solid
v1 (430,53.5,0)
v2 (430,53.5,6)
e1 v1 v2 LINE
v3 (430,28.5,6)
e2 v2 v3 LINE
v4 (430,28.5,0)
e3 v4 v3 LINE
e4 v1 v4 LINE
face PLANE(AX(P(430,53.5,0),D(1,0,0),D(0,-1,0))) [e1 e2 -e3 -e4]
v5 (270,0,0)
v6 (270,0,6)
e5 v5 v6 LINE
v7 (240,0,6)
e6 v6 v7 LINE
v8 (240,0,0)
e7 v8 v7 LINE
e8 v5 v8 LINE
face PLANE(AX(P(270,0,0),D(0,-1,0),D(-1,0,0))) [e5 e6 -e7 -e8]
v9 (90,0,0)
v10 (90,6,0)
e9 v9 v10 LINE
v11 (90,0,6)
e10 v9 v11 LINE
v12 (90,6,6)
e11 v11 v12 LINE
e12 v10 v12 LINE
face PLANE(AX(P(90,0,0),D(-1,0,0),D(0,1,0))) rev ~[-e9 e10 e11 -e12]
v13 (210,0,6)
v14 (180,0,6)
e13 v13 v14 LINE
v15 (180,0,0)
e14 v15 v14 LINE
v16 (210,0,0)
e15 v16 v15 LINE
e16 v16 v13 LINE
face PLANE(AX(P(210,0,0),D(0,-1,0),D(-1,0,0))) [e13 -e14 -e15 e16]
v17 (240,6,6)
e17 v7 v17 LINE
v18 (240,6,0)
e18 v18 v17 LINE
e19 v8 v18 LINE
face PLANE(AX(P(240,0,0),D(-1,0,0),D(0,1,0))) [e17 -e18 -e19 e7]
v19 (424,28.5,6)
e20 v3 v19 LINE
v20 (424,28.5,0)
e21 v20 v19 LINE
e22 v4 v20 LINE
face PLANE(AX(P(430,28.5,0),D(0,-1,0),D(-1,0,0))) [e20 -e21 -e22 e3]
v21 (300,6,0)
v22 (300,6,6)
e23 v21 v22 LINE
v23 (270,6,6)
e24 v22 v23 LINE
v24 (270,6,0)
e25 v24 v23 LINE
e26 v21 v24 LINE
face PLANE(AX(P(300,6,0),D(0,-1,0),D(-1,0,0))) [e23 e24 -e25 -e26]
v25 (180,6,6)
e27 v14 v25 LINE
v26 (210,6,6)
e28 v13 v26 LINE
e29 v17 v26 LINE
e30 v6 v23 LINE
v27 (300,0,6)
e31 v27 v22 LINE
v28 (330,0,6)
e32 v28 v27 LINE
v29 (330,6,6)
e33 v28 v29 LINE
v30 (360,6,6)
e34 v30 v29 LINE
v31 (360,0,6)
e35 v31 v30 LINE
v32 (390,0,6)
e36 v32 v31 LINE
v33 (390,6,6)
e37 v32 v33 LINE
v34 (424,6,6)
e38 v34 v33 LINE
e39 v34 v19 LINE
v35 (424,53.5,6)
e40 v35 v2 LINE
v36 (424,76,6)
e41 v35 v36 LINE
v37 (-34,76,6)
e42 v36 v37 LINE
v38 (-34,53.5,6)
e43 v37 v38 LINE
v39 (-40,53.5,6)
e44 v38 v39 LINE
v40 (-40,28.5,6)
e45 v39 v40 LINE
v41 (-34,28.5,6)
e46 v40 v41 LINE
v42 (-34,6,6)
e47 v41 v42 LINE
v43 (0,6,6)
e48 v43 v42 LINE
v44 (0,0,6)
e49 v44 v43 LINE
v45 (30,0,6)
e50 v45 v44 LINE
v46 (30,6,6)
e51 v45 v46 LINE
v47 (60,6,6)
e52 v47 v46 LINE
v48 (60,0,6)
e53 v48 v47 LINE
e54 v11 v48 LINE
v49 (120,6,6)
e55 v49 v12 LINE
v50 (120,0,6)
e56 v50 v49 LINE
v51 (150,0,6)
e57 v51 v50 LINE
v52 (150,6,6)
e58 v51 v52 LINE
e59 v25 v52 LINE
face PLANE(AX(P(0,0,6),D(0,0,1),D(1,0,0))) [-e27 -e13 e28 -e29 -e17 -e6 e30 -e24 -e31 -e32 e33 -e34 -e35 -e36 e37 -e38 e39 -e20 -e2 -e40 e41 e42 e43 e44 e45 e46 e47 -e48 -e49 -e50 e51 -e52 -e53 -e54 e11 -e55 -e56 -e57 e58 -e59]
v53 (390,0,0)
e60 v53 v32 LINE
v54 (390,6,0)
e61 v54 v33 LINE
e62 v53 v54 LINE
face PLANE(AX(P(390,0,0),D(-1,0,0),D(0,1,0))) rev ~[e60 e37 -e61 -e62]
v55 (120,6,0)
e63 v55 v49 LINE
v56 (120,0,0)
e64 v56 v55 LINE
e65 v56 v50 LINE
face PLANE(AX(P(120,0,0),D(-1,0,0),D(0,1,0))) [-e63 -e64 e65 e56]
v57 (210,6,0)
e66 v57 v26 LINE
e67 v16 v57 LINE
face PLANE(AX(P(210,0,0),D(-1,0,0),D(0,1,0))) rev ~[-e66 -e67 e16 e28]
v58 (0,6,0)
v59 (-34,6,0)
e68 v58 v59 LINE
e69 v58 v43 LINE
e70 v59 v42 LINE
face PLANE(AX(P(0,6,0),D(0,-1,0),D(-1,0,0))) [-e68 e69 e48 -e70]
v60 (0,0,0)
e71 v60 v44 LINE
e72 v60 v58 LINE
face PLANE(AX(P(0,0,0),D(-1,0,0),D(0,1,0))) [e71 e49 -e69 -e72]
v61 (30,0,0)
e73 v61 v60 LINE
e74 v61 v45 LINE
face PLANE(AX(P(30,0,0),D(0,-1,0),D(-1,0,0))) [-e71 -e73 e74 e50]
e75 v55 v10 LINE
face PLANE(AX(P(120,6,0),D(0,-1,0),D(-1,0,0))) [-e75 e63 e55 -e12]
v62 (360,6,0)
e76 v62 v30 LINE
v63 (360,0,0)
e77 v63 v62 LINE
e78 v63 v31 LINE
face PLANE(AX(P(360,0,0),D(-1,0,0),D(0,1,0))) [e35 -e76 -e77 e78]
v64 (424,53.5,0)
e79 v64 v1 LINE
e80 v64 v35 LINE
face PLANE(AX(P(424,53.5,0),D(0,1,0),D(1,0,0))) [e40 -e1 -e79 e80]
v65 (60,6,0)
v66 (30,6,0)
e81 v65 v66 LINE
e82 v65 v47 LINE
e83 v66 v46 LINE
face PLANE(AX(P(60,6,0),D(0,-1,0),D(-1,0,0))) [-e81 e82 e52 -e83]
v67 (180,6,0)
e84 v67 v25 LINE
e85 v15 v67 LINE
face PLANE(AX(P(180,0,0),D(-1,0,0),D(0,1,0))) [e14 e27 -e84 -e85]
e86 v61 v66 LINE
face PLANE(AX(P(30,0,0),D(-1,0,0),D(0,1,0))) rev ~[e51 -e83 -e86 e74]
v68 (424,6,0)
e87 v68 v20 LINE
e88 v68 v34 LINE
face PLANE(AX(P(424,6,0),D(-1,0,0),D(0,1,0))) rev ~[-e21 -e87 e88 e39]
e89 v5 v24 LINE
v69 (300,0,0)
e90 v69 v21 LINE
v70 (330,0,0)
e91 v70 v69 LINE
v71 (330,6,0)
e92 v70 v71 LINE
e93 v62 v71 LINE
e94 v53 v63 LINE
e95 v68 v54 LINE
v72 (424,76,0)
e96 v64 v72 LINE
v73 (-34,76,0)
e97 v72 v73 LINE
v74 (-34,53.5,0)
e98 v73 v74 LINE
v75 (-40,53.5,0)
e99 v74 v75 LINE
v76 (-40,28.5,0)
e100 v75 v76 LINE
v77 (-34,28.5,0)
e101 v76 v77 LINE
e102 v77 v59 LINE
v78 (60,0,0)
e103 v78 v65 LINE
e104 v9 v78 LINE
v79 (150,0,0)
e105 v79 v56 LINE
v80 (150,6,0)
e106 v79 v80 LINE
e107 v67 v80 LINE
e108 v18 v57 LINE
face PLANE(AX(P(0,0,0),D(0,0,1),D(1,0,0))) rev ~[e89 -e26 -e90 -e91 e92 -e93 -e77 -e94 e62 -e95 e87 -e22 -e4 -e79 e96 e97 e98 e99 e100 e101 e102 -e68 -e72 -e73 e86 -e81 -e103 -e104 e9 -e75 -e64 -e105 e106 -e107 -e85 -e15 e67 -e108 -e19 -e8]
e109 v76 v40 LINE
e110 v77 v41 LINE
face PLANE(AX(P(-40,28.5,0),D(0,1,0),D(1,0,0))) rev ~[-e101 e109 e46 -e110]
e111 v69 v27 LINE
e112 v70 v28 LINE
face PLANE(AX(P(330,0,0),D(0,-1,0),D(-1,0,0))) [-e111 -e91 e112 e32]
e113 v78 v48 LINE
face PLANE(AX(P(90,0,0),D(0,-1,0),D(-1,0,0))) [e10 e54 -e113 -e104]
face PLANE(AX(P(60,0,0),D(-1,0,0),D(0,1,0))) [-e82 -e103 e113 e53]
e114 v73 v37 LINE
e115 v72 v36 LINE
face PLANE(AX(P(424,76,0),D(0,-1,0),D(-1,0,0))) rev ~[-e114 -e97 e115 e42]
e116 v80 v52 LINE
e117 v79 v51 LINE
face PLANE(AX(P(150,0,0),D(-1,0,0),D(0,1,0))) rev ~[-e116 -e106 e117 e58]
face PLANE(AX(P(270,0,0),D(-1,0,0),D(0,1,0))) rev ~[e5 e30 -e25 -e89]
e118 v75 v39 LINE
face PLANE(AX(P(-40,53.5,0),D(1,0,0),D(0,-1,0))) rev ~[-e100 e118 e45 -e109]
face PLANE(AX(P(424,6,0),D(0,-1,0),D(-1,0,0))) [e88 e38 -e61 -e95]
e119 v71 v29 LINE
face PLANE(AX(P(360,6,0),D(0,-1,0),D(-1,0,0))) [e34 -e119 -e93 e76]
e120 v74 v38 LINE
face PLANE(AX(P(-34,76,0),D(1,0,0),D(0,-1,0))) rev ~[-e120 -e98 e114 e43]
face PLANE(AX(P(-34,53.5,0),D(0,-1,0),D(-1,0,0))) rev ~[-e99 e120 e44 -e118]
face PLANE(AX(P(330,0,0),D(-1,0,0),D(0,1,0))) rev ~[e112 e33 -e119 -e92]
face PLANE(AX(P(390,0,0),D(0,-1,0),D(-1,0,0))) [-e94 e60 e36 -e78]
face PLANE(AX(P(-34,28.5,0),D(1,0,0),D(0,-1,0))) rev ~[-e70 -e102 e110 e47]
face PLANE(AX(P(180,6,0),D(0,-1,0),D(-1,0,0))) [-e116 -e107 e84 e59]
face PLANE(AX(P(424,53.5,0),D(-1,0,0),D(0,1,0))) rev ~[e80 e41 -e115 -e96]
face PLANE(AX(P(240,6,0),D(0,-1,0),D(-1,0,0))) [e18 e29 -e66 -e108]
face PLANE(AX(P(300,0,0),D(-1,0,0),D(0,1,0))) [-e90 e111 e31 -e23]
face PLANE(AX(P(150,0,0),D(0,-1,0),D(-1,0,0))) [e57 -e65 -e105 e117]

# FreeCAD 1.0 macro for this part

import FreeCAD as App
import Part
import Sketcher
from FreeCAD import Vector

doc = App.newDocument("Part")
body = doc.addObject("PartDesign::Body", "Body")

# Sketch on XY plane
sketch1 = body.newObject("Sketcher::SketchObject", "Sketch")
sketch1.AttachmentSupport = (doc.getObject("XY_Plane"), [""])
sketch1.MapMode = "FlatFace"
sketch1.addGeometry(Part.LineSegment(Vector(-34, 28.5, 0), Vector(-34, 6, 0)), False)
sketch1.addGeometry(Part.LineSegment(Vector(-34, 6, 0), Vector(0, 6, 0)), False)
sketch1.addGeometry(Part.LineSegment(Vector(0, 6, 0), Vector(0, 0, 0)), False)
sketch1.addGeometry(Part.LineSegment(Vector(0, 0, 0), Vector(30, 0, 0)), False)
sketch1.addGeometry(Part.LineSegment(Vector(30, 0, 0), Vector(30, 6, 0)), False)
sketch1.addGeometry(Part.LineSegment(Vector(30, 6, 0), Vector(60, 6, 0)), False)
sketch1.addGeometry(Part.LineSegment(Vector(60, 6, 0), Vector(60, 0, 0)), False)
sketch1.addGeometry(Part.LineSegment(Vector(60, 0, 0), Vector(90, 0, 0)), False)
sketch1.addGeometry(Part.LineSegment(Vector(90, 0, 0), Vector(90, 6, 0)), False)
sketch1.addGeometry(Part.LineSegment(Vector(90, 6, 0), Vector(120, 6, 0)), False)
sketch1.addGeometry(Part.LineSegment(Vector(120, 6, 0), Vector(120, 0, 0)), False)
sketch1.addGeometry(Part.LineSegment(Vector(120, 0, 0), Vector(150, 0, 0)), False)
sketch1.addGeometry(Part.LineSegment(Vector(150, 0, 0), Vector(150, 6, 0)), False)
sketch1.addGeometry(Part.LineSegment(Vector(150, 6, 0), Vector(180, 6, 0)), False)
sketch1.addGeometry(Part.LineSegment(Vector(180, 6, 0), Vector(180, 0, 0)), False)
sketch1.addGeometry(Part.LineSegment(Vector(180, 0, 0), Vector(210, 0, 0)), False)
sketch1.addGeometry(Part.LineSegment(Vector(210, 0, 0), Vector(210, 6, 0)), False)
sketch1.addGeometry(Part.LineSegment(Vector(210, 6, 0), Vector(240, 6, 0)), False)
sketch1.addGeometry(Part.LineSegment(Vector(240, 6, 0), Vector(240, 0, 0)), False)
sketch1.addGeometry(Part.LineSegment(Vector(240, 0, 0), Vector(270, 0, 0)), False)
sketch1.addGeometry(Part.LineSegment(Vector(270, 0, 0), Vector(270, 6, 0)), False)
sketch1.addGeometry(Part.LineSegment(Vector(270, 6, 0), Vector(300, 6, 0)), False)
sketch1.addGeometry(Part.LineSegment(Vector(300, 6, 0), Vector(300, 0, 0)), False)
sketch1.addGeometry(Part.LineSegment(Vector(300, 0, 0), Vector(330, 0, 0)), False)
sketch1.addGeometry(Part.LineSegment(Vector(330, 0, 0), Vector(330, 6, 0)), False)
sketch1.addGeometry(Part.LineSegment(Vector(330, 6, 0), Vector(360, 6, 0)), False)
sketch1.addGeometry(Part.LineSegment(Vector(360, 6, 0), Vector(360, 0, 0)), False)
sketch1.addGeometry(Part.LineSegment(Vector(360, 0, 0), Vector(390, 0, 0)), False)
sketch1.addGeometry(Part.LineSegment(Vector(390, 0, 0), Vector(390, 6, 0)), False)
sketch1.addGeometry(Part.LineSegment(Vector(390, 6, 0), Vector(424, 6, 0)), False)
sketch1.addGeometry(Part.LineSegment(Vector(424, 6, 0), Vector(424, 28.5, 0)), False)
sketch1.addGeometry(Part.LineSegment(Vector(424, 28.5, 0), Vector(430, 28.5, 0)), False)
sketch1.addGeometry(Part.LineSegment(Vector(430, 28.5, 0), Vector(430, 53.5, 0)), False)
sketch1.addGeometry(Part.LineSegment(Vector(430, 53.5, 0), Vector(424, 53.5, 0)), False)
sketch1.addGeometry(Part.LineSegment(Vector(424, 53.5, 0), Vector(424, 76, 0)), False)
sketch1.addGeometry(Part.LineSegment(Vector(424, 76, 0), Vector(-34, 76, 0)), False)
sketch1.addGeometry(Part.LineSegment(Vector(-34, 76, 0), Vector(-34, 53.5, 0)), False)
sketch1.addGeometry(Part.LineSegment(Vector(-34, 53.5, 0), Vector(-40, 53.5, 0)), False)
sketch1.addGeometry(Part.LineSegment(Vector(-40, 53.5, 0), Vector(-40, 28.5, 0)), False)
sketch1.addGeometry(Part.LineSegment(Vector(-40, 28.5, 0), Vector(-34, 28.5, 0)), False)
sketch1.addConstraint(Sketcher.Constraint("Coincident", 0, 2, 1, 1))
sketch1.addConstraint(Sketcher.Constraint("Coincident", 1, 2, 2, 1))
sketch1.addConstraint(Sketcher.Constraint("Coincident", 2, 2, 3, 1))
sketch1.addConstraint(Sketcher.Constraint("Coincident", 3, 2, 4, 1))
sketch1.addConstraint(Sketcher.Constraint("Coincident", 4, 2, 5, 1))
sketch1.addConstraint(Sketcher.Constraint("Coincident", 5, 2, 6, 1))
sketch1.addConstraint(Sketcher.Constraint("Coincident", 6, 2, 7, 1))
sketch1.addConstraint(Sketcher.Constraint("Coincident", 7, 2, 8, 1))
sketch1.addConstraint(Sketcher.Constraint("Coincident", 8, 2, 9, 1))
sketch1.addConstraint(Sketcher.Constraint("Coincident", 9, 2, 10, 1))
sketch1.addConstraint(Sketcher.Constraint("Coincident", 10, 2, 11, 1))
sketch1.addConstraint(Sketcher.Constraint("Coincident", 11, 2, 12, 1))
sketch1.addConstraint(Sketcher.Constraint("Coincident", 12, 2, 13, 1))
sketch1.addConstraint(Sketcher.Constraint("Coincident", 13, 2, 14, 1))
sketch1.addConstraint(Sketcher.Constraint("Coincident", 14, 2, 15, 1))
sketch1.addConstraint(Sketcher.Constraint("Coincident", 15, 2, 16, 1))
sketch1.addConstraint(Sketcher.Constraint("Coincident", 16, 2, 17, 1))
sketch1.addConstraint(Sketcher.Constraint("Coincident", 17, 2, 18, 1))
sketch1.addConstraint(Sketcher.Constraint("Coincident", 18, 2, 19, 1))
sketch1.addConstraint(Sketcher.Constraint("Coincident", 19, 2, 20, 1))
sketch1.addConstraint(Sketcher.Constraint("Coincident", 20, 2, 21, 1))
sketch1.addConstraint(Sketcher.Constraint("Coincident", 21, 2, 22, 1))
sketch1.addConstraint(Sketcher.Constraint("Coincident", 22, 2, 23, 1))
sketch1.addConstraint(Sketcher.Constraint("Coincident", 23, 2, 24, 1))
sketch1.addConstraint(Sketcher.Constraint("Coincident", 24, 2, 25, 1))
sketch1.addConstraint(Sketcher.Constraint("Coincident", 25, 2, 26, 1))
sketch1.addConstraint(Sketcher.Constraint("Coincident", 26, 2, 27, 1))
sketch1.addConstraint(Sketcher.Constraint("Coincident", 27, 2, 28, 1))
sketch1.addConstraint(Sketcher.Constraint("Coincident", 28, 2, 29, 1))
sketch1.addConstraint(Sketcher.Constraint("Coincident", 29, 2, 30, 1))
sketch1.addConstraint(Sketcher.Constraint("Coincident", 30, 2, 31, 1))
sketch1.addConstraint(Sketcher.Constraint("Coincident", 31, 2, 32, 1))
sketch1.addConstraint(Sketcher.Constraint("Coincident", 32, 2, 33, 1))
sketch1.addConstraint(Sketcher.Constraint("Coincident", 33, 2, 34, 1))
sketch1.addConstraint(Sketcher.Constraint("Coincident", 34, 2, 35, 1))
sketch1.addConstraint(Sketcher.Constraint("Coincident", 35, 2, 36, 1))
sketch1.addConstraint(Sketcher.Constraint("Coincident", 36, 2, 37, 1))
sketch1.addConstraint(Sketcher.Constraint("Coincident", 37, 2, 38, 1))
sketch1.addConstraint(Sketcher.Constraint("Coincident", 38, 2, 39, 1))
sketch1.addConstraint(Sketcher.Constraint("Coincident", 39, 2, 0, 1))
sketch1.addConstraint(Sketcher.Constraint("Vertical", 0))
sketch1.addConstraint(Sketcher.Constraint("Horizontal", 1))
sketch1.addConstraint(Sketcher.Constraint("Vertical", 2))
sketch1.addConstraint(Sketcher.Constraint("Horizontal", 3))
sketch1.addConstraint(Sketcher.Constraint("Vertical", 4))
sketch1.addConstraint(Sketcher.Constraint("Horizontal", 5))
sketch1.addConstraint(Sketcher.Constraint("Vertical", 6))
sketch1.addConstraint(Sketcher.Constraint("Horizontal", 7))
sketch1.addConstraint(Sketcher.Constraint("Vertical", 8))
sketch1.addConstraint(Sketcher.Constraint("Horizontal", 9))
sketch1.addConstraint(Sketcher.Constraint("Vertical", 10))
sketch1.addConstraint(Sketcher.Constraint("Horizontal", 11))
sketch1.addConstraint(Sketcher.Constraint("Vertical", 12))
sketch1.addConstraint(Sketcher.Constraint("Horizontal", 13))
sketch1.addConstraint(Sketcher.Constraint("Vertical", 14))
sketch1.addConstraint(Sketcher.Constraint("Horizontal", 15))
sketch1.addConstraint(Sketcher.Constraint("Vertical", 16))
sketch1.addConstraint(Sketcher.Constraint("Horizontal", 17))
sketch1.addConstraint(Sketcher.Constraint("Vertical", 18))
sketch1.addConstraint(Sketcher.Constraint("Horizontal", 19))
sketch1.addConstraint(Sketcher.Constraint("Vertical", 20))
sketch1.addConstraint(Sketcher.Constraint("Horizontal", 21))
sketch1.addConstraint(Sketcher.Constraint("Vertical", 22))
sketch1.addConstraint(Sketcher.Constraint("Horizontal", 23))
sketch1.addConstraint(Sketcher.Constraint("Vertical", 24))
sketch1.addConstraint(Sketcher.Constraint("Horizontal", 25))
sketch1.addConstraint(Sketcher.Constraint("Vertical", 26))
sketch1.addConstraint(Sketcher.Constraint("Horizontal", 27))
sketch1.addConstraint(Sketcher.Constraint("Vertical", 28))
sketch1.addConstraint(Sketcher.Constraint("Horizontal", 29))
sketch1.addConstraint(Sketcher.Constraint("Vertical", 30))
sketch1.addConstraint(Sketcher.Constraint("Horizontal", 31))
sketch1.addConstraint(Sketcher.Constraint("Vertical", 32))
sketch1.addConstraint(Sketcher.Constraint("Horizontal", 33))
sketch1.addConstraint(Sketcher.Constraint("Vertical", 34))
sketch1.addConstraint(Sketcher.Constraint("Horizontal", 35))
sketch1.addConstraint(Sketcher.Constraint("Vertical", 36))
sketch1.addConstraint(Sketcher.Constraint("Horizontal", 37))
sketch1.addConstraint(Sketcher.Constraint("Vertical", 38))
sketch1.addConstraint(Sketcher.Constraint("Horizontal", 39))
sketch1.addConstraint(Sketcher.Constraint("Coincident", 2, 2, -1, 1))
sketch1.addConstraint(Sketcher.Constraint("PointOnObject", 6, 2, -1))
sketch1.addConstraint(Sketcher.Constraint("PointOnObject", 10, 2, -1))
sketch1.addConstraint(Sketcher.Constraint("PointOnObject", 14, 2, -1))
sketch1.addConstraint(Sketcher.Constraint("PointOnObject", 18, 2, -1))
sketch1.addConstraint(Sketcher.Constraint("PointOnObject", 22, 2, -1))
sketch1.addConstraint(Sketcher.Constraint("PointOnObject", 26, 2, -1))
sketch1.addConstraint(Sketcher.Constraint("Horizontal", 1, 2, 4, 2))
sketch1.addConstraint(Sketcher.Constraint("Horizontal", 5, 2, 8, 2))
sketch1.addConstraint(Sketcher.Constraint("Horizontal", 9, 2, 12, 2))
sketch1.addConstraint(Sketcher.Constraint("Horizontal", 13, 2, 16, 2))
sketch1.addConstraint(Sketcher.Constraint("Horizontal", 17, 2, 20, 2))
sketch1.addConstraint(Sketcher.Constraint("Horizontal", 21, 2, 24, 2))
sketch1.addConstraint(Sketcher.Constraint("Horizontal", 25, 2, 28, 2))
sketch1.addConstraint(Sketcher.Constraint("Horizontal", 33, 2, 36, 2))
sketch1.addConstraint(Sketcher.Constraint("Horizontal", 31, 2, 38, 2))
sketch1.addConstraint(Sketcher.Constraint("Vertical", 30, 2, 33, 2))
sketch1.addConstraint(Sketcher.Constraint("Vertical", 0, 2, 35, 2))
sketch1.addConstraint(Sketcher.Constraint("Equal", 3, 5))
sketch1.addConstraint(Sketcher.Constraint("Equal", 5, 7))
sketch1.addConstraint(Sketcher.Constraint("Equal", 7, 9))
sketch1.addConstraint(Sketcher.Constraint("Equal", 9, 11))
sketch1.addConstraint(Sketcher.Constraint("Equal", 11, 13))
sketch1.addConstraint(Sketcher.Constraint("Equal", 13, 15))
sketch1.addConstraint(Sketcher.Constraint("Equal", 15, 17))
sketch1.addConstraint(Sketcher.Constraint("Equal", 17, 19))
sketch1.addConstraint(Sketcher.Constraint("Equal", 19, 21))
sketch1.addConstraint(Sketcher.Constraint("Equal", 21, 23))
sketch1.addConstraint(Sketcher.Constraint("Equal", 23, 25))
sketch1.addConstraint(Sketcher.Constraint("Equal", 25, 27))
sketch1.addConstraint(Sketcher.Constraint("Equal", 1, 29))
sketch1.addConstraint(Sketcher.Constraint("Equal", 33, 37))
sketch1.addConstraint(Sketcher.Constraint("Equal", 39, 2))
sketch1.addConstraint(Sketcher.Constraint("Equal", 30, 34))
sketch1.addConstraint(Sketcher.Constraint("DistanceX", 31, 1, 31, 2, 6.0))
sketch1.addConstraint(Sketcher.Constraint("DistanceY", 32, 1, 32, 2, 25.0))
sketch1.addConstraint(Sketcher.Constraint("DistanceX", 25, 2, 31, 2, 70.0))
sketch1.addConstraint(Sketcher.Constraint("DistanceY", 29, 2, 34, 2, 70.0))
sketch1.addConstraint(Sketcher.Constraint("DistanceX", 1, 1, 1, 2, 34.0))
pad1 = body.newObject("PartDesign::Pad", "Pad")
pad1.Profile = sketch1
pad1.Length = 6

doc.recompute()
